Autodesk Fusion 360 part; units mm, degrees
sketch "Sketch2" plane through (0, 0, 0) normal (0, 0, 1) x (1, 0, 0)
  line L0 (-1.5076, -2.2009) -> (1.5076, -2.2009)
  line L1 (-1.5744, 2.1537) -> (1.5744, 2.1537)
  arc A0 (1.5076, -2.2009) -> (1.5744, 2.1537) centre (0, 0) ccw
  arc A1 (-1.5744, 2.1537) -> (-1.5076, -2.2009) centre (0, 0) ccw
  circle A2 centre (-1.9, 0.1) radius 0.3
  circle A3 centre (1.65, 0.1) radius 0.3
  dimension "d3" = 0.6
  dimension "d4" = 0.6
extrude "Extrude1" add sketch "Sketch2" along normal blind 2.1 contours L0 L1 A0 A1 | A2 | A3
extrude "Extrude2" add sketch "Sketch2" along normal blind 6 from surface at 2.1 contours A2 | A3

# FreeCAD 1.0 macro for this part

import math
import FreeCAD as App
import Part
import Sketcher
from FreeCAD import Vector

doc = App.newDocument("Part")
params = doc.addObject("Spreadsheet::Sheet", "Params")
for row, (alias, value) in enumerate([
    ("pad1_length", "2.1 mm"),
    ("sketch2_diameter", "0.6 mm"),
    ("pad2_length", "6 mm"),
], start=1):
    params.set(f"A{row}", alias)
    params.set(f"B{row}", "=" + value)
    params.setAlias(f"B{row}", alias)

body = doc.addObject("PartDesign::Body", "Body")

sketch1 = body.newObject("Sketcher::SketchObject", "Sketch")
sketch1.AttachmentSupport = (doc.getObject("XY_Plane"), [""])
sketch1.MapMode = "FlatFace"
sketch1.addGeometry([
    Part.ArcOfCircle(Part.Circle(Vector(0, 0, 0), Vector(0, 0, 1), 2.7), math.radians(126), math.radians(236)),
    Part.LineSegment(Vector(-1.5, -2.2, 0), Vector(1.5, -2.2, 0)),
    Part.ArcOfCircle(Part.Circle(Vector(0, 0, 0), Vector(0, 0, 1), 2.7), math.radians(-56), math.radians(54)),
    Part.LineSegment(Vector(1.6, 2.2, 0), Vector(-1.6, 2.2, 0)),
], False)
sketch1.addConstraint([
    Sketcher.Constraint("Coincident", 0, 2, 1, 1),
    Sketcher.Constraint("Coincident", 1, 2, 2, 1),
    Sketcher.Constraint("Coincident", 2, 2, 3, 1),
    Sketcher.Constraint("Coincident", 3, 2, 0, 1),
    Sketcher.Constraint("Horizontal", 1),
    Sketcher.Constraint("Horizontal", 3),
    Sketcher.Constraint("Coincident", 0, 3, -1, 1),
    Sketcher.Constraint("Coincident", 2, 3, -1, 1),
    Sketcher.Constraint("Equal", 0, 2),
    Sketcher.Constraint("Radius", 0, 2.6677),
    Sketcher.Constraint("DistanceX", 1, 1, 1, 2, 3.0152),
    Sketcher.Constraint("DistanceX", 3, 2, 3, 1, 3.1488),
])
pad1 = body.newObject("PartDesign::Pad", "Pad")
pad1.Profile = sketch1
pad1.setExpression("Length", "Params.pad1_length")

sketch2 = body.newObject("Sketcher::SketchObject", "Sketch001")
sketch2.AttachmentSupport = (doc.getObject("XY_Plane"), [""])
sketch2.MapMode = "FlatFace"
sketch2.AttachmentOffset = App.Placement(Vector(0, 0, 2.1), App.Rotation())
sketch2.addGeometry([
    Part.Circle(Vector(-1.9, 0.1, 0), Vector(0, 0, 1), 0.3),
    Part.Circle(Vector(1.65, 0.1, 0), Vector(0, 0, 1), 0.3),
], False)
sketch2.addConstraint([
    Sketcher.Constraint("Equal", 0, 1),
    Sketcher.Constraint("Horizontal", 0, 3, 1, 3),
    Sketcher.Constraint("Diameter", 0, 0.6),
    Sketcher.Constraint("DistanceX", 0, 3, -1, 1, 1.9),
    Sketcher.Constraint("DistanceY", -1, 1, 0, 3, 0.1),
    Sketcher.Constraint("DistanceX", -1, 1, 1, 3, 1.65),
])
sketch2.setExpression("Constraints[2]", "Params.sketch2_diameter")
pad2 = body.newObject("PartDesign::Pad", "Pad001")
pad2.Profile = sketch2
pad2.setExpression("Length", "Params.pad2_length")

doc.recompute()
